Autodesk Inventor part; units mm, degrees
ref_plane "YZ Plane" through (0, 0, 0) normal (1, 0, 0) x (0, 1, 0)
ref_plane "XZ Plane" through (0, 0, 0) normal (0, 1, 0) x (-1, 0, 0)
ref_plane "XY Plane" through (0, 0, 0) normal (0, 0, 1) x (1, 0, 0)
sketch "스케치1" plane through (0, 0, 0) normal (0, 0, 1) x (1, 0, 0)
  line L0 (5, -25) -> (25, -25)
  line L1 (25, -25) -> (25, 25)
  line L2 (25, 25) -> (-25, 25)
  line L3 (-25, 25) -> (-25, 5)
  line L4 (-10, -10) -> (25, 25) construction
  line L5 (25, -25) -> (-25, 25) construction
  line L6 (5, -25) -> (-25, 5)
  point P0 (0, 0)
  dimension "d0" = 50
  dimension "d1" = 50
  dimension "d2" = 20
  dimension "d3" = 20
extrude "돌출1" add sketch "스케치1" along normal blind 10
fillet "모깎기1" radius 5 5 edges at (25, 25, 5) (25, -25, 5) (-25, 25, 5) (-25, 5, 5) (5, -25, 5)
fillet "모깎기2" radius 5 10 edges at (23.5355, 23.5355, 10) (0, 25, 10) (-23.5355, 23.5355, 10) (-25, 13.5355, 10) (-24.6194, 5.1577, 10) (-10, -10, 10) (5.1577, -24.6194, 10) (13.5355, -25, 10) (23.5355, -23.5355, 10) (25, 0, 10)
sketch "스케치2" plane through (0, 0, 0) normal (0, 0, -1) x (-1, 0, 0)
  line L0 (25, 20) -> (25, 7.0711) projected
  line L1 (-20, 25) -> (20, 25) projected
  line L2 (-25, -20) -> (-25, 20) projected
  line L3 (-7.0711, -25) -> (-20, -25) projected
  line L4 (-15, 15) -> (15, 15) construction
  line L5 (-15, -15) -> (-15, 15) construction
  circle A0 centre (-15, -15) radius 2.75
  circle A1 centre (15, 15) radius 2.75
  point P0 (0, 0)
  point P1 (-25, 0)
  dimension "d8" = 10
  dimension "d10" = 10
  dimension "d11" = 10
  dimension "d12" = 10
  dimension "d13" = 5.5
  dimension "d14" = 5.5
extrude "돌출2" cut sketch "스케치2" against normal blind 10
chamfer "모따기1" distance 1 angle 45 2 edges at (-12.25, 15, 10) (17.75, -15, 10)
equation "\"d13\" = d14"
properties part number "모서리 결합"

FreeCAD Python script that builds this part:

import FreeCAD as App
import Part
import Sketcher
from FreeCAD import Vector
Q = App.Units.Quantity


def edges_at(feature, points):
    """Names of the edges that pass closest to the given points."""
    edges = feature.Shape.Edges
    near = lambda p: min(range(len(edges)), key=lambda i: edges[i].distToShape(Part.Vertex(*p))[0])
    return sorted({f"Edge{near(p) + 1}" for p in points})


def add_polygon(sketch, points):
    """Adds a closed chain of lines whose ends are joined by coincident constraints."""
    first, n = sketch.GeometryCount, len(points)
    for a, b in zip(points, points[1:] + points[:1]):
        sketch.addGeometry(Part.LineSegment(App.Vector(*a, 0), App.Vector(*b, 0)), False)
    for i in range(n):
        sketch.addConstraint(Sketcher.Constraint("Coincident", first + i, 2, first + (i + 1) % n, 1))

doc = App.newDocument("Part")
params = doc.addObject("Spreadsheet::Sheet", "Params")
for row, (alias, value) in enumerate([
    ("sketch1_width", "20 mm"),
    ("sketch1_width2", "50 mm"),
    ("pad1_length", "10 mm"),
    ("fillet_radius", "5 mm"),
    ("fillet2_radius", "5 mm"),
    ("sketch2_diameter", "5.5 mm"),
    ("pocket1_length", "10 mm"),
    ("chamfer_size", "1 mm"),
], start=1):
    params.set(f"A{row}", alias)
    params.set(f"B{row}", "=" + value)
    params.setAlias(f"B{row}", alias)

body = doc.addObject("PartDesign::Body", "Body")

# Sketch on XY plane
sketch1 = doc.addObject("Sketcher::SketchObject", "Sketch")
body.addObject(sketch1)
sketch1.AttachmentSupport = (doc.XY_Plane, [""])
sketch1.MapMode = "FlatFace"
add_polygon(sketch1, [(-25, 5), (5, -25), (25, -25), (25, 25), (-25, 25)])  # lines 0-4
sketch1.addConstraint([
    Sketcher.Constraint("Horizontal", 1),
    Sketcher.Constraint("Vertical", 2),
    Sketcher.Constraint("Horizontal", 3),
    Sketcher.Constraint("Vertical", 4),
    Sketcher.Constraint("Symmetric", 1, 2, 3, 2, -1, 1),
    Sketcher.Constraint("Equal", 3, 2),
    Sketcher.Constraint("Equal", 1, 4),
    Sketcher.Constraint("DistanceX", 1, 1, 1, 2, Q("20 mm")),
    Sketcher.Constraint("DistanceX", 3, 2, 3, 1, Q("50 mm")),
])
sketch1.setExpression("Constraints[12]", "Params.sketch1_width")
sketch1.setExpression("Constraints[13]", "Params.sketch1_width2")
pad1 = doc.addObject("PartDesign::Pad", "Pad")
body.addObject(pad1)
pad1.Profile = sketch1
pad1.setExpression("Length", "Params.pad1_length")
doc.recompute()

fillet = doc.addObject("PartDesign::Fillet", "Fillet")
body.addObject(fillet)
fillet.Base = (pad1, edges_at(pad1, [
    (25, 25, 5),
    (25, -25, 5),
    (-25, 25, 5),
    (-25, 5, 5),
    (5, -25, 5),
]))
fillet.setExpression("Radius", "Params.fillet_radius")
doc.recompute()

fillet2 = doc.addObject("PartDesign::Fillet", "Fillet001")
body.addObject(fillet2)
fillet2.Base = (fillet, edges_at(fillet, [
    (23.535, 23.535, 10),
    (0, 25, 10),
    (-23.535, 23.535, 10),
    (-25, 13.536, 10),
    (-24.619, 5.158, 10),
    (-10, -10, 10),
    (5.158, -24.619, 10),
    (13.536, -25, 10),
    (23.535, -23.535, 10),
    (25, 0, 10),
]))
fillet2.setExpression("Radius", "Params.fillet2_radius")

# Sketch on XY plane
sketch2 = doc.addObject("Sketcher::SketchObject", "Sketch001")
body.addObject(sketch2)
sketch2.AttachmentSupport = (doc.XY_Plane, [""])
sketch2.MapMode = "FlatFace"
sketch2.addGeometry([
    Part.Circle(Vector(15, -15, 0), Vector(0, 0, 1), 2.8),
    Part.Circle(Vector(-15, 15, 0), Vector(0, 0, 1), 2.8),
], False)
sketch2.addConstraint([
    Sketcher.Constraint("Equal", 0, 1),
    Sketcher.Constraint("Symmetric", 0, 3, 1, 3, -1, 1),
    Sketcher.Constraint("Diameter", 0, Q("5.5 mm")),
    Sketcher.Constraint("DistanceX", -1, 1, 0, 3, Q("15 mm")),
    Sketcher.Constraint("DistanceY", 0, 3, -1, 1, Q("15 mm")),
])
sketch2.setExpression("Constraints[2]", "Params.sketch2_diameter")
pocket1 = doc.addObject("PartDesign::Pocket", "Pocket")
body.addObject(pocket1)
pocket1.Profile = sketch2
pocket1.setExpression("Length", "Params.pocket1_length")
pocket1.Reversed = True
doc.recompute()

chamfer = doc.addObject("PartDesign::Chamfer", "Chamfer")
body.addObject(chamfer)
chamfer.Base = (pocket1, edges_at(pocket1, [(-12.25, 15, 10), (17.75, -15, 10)]))
chamfer.setExpression("Size", "Params.chamfer_size")

doc.recompute()
